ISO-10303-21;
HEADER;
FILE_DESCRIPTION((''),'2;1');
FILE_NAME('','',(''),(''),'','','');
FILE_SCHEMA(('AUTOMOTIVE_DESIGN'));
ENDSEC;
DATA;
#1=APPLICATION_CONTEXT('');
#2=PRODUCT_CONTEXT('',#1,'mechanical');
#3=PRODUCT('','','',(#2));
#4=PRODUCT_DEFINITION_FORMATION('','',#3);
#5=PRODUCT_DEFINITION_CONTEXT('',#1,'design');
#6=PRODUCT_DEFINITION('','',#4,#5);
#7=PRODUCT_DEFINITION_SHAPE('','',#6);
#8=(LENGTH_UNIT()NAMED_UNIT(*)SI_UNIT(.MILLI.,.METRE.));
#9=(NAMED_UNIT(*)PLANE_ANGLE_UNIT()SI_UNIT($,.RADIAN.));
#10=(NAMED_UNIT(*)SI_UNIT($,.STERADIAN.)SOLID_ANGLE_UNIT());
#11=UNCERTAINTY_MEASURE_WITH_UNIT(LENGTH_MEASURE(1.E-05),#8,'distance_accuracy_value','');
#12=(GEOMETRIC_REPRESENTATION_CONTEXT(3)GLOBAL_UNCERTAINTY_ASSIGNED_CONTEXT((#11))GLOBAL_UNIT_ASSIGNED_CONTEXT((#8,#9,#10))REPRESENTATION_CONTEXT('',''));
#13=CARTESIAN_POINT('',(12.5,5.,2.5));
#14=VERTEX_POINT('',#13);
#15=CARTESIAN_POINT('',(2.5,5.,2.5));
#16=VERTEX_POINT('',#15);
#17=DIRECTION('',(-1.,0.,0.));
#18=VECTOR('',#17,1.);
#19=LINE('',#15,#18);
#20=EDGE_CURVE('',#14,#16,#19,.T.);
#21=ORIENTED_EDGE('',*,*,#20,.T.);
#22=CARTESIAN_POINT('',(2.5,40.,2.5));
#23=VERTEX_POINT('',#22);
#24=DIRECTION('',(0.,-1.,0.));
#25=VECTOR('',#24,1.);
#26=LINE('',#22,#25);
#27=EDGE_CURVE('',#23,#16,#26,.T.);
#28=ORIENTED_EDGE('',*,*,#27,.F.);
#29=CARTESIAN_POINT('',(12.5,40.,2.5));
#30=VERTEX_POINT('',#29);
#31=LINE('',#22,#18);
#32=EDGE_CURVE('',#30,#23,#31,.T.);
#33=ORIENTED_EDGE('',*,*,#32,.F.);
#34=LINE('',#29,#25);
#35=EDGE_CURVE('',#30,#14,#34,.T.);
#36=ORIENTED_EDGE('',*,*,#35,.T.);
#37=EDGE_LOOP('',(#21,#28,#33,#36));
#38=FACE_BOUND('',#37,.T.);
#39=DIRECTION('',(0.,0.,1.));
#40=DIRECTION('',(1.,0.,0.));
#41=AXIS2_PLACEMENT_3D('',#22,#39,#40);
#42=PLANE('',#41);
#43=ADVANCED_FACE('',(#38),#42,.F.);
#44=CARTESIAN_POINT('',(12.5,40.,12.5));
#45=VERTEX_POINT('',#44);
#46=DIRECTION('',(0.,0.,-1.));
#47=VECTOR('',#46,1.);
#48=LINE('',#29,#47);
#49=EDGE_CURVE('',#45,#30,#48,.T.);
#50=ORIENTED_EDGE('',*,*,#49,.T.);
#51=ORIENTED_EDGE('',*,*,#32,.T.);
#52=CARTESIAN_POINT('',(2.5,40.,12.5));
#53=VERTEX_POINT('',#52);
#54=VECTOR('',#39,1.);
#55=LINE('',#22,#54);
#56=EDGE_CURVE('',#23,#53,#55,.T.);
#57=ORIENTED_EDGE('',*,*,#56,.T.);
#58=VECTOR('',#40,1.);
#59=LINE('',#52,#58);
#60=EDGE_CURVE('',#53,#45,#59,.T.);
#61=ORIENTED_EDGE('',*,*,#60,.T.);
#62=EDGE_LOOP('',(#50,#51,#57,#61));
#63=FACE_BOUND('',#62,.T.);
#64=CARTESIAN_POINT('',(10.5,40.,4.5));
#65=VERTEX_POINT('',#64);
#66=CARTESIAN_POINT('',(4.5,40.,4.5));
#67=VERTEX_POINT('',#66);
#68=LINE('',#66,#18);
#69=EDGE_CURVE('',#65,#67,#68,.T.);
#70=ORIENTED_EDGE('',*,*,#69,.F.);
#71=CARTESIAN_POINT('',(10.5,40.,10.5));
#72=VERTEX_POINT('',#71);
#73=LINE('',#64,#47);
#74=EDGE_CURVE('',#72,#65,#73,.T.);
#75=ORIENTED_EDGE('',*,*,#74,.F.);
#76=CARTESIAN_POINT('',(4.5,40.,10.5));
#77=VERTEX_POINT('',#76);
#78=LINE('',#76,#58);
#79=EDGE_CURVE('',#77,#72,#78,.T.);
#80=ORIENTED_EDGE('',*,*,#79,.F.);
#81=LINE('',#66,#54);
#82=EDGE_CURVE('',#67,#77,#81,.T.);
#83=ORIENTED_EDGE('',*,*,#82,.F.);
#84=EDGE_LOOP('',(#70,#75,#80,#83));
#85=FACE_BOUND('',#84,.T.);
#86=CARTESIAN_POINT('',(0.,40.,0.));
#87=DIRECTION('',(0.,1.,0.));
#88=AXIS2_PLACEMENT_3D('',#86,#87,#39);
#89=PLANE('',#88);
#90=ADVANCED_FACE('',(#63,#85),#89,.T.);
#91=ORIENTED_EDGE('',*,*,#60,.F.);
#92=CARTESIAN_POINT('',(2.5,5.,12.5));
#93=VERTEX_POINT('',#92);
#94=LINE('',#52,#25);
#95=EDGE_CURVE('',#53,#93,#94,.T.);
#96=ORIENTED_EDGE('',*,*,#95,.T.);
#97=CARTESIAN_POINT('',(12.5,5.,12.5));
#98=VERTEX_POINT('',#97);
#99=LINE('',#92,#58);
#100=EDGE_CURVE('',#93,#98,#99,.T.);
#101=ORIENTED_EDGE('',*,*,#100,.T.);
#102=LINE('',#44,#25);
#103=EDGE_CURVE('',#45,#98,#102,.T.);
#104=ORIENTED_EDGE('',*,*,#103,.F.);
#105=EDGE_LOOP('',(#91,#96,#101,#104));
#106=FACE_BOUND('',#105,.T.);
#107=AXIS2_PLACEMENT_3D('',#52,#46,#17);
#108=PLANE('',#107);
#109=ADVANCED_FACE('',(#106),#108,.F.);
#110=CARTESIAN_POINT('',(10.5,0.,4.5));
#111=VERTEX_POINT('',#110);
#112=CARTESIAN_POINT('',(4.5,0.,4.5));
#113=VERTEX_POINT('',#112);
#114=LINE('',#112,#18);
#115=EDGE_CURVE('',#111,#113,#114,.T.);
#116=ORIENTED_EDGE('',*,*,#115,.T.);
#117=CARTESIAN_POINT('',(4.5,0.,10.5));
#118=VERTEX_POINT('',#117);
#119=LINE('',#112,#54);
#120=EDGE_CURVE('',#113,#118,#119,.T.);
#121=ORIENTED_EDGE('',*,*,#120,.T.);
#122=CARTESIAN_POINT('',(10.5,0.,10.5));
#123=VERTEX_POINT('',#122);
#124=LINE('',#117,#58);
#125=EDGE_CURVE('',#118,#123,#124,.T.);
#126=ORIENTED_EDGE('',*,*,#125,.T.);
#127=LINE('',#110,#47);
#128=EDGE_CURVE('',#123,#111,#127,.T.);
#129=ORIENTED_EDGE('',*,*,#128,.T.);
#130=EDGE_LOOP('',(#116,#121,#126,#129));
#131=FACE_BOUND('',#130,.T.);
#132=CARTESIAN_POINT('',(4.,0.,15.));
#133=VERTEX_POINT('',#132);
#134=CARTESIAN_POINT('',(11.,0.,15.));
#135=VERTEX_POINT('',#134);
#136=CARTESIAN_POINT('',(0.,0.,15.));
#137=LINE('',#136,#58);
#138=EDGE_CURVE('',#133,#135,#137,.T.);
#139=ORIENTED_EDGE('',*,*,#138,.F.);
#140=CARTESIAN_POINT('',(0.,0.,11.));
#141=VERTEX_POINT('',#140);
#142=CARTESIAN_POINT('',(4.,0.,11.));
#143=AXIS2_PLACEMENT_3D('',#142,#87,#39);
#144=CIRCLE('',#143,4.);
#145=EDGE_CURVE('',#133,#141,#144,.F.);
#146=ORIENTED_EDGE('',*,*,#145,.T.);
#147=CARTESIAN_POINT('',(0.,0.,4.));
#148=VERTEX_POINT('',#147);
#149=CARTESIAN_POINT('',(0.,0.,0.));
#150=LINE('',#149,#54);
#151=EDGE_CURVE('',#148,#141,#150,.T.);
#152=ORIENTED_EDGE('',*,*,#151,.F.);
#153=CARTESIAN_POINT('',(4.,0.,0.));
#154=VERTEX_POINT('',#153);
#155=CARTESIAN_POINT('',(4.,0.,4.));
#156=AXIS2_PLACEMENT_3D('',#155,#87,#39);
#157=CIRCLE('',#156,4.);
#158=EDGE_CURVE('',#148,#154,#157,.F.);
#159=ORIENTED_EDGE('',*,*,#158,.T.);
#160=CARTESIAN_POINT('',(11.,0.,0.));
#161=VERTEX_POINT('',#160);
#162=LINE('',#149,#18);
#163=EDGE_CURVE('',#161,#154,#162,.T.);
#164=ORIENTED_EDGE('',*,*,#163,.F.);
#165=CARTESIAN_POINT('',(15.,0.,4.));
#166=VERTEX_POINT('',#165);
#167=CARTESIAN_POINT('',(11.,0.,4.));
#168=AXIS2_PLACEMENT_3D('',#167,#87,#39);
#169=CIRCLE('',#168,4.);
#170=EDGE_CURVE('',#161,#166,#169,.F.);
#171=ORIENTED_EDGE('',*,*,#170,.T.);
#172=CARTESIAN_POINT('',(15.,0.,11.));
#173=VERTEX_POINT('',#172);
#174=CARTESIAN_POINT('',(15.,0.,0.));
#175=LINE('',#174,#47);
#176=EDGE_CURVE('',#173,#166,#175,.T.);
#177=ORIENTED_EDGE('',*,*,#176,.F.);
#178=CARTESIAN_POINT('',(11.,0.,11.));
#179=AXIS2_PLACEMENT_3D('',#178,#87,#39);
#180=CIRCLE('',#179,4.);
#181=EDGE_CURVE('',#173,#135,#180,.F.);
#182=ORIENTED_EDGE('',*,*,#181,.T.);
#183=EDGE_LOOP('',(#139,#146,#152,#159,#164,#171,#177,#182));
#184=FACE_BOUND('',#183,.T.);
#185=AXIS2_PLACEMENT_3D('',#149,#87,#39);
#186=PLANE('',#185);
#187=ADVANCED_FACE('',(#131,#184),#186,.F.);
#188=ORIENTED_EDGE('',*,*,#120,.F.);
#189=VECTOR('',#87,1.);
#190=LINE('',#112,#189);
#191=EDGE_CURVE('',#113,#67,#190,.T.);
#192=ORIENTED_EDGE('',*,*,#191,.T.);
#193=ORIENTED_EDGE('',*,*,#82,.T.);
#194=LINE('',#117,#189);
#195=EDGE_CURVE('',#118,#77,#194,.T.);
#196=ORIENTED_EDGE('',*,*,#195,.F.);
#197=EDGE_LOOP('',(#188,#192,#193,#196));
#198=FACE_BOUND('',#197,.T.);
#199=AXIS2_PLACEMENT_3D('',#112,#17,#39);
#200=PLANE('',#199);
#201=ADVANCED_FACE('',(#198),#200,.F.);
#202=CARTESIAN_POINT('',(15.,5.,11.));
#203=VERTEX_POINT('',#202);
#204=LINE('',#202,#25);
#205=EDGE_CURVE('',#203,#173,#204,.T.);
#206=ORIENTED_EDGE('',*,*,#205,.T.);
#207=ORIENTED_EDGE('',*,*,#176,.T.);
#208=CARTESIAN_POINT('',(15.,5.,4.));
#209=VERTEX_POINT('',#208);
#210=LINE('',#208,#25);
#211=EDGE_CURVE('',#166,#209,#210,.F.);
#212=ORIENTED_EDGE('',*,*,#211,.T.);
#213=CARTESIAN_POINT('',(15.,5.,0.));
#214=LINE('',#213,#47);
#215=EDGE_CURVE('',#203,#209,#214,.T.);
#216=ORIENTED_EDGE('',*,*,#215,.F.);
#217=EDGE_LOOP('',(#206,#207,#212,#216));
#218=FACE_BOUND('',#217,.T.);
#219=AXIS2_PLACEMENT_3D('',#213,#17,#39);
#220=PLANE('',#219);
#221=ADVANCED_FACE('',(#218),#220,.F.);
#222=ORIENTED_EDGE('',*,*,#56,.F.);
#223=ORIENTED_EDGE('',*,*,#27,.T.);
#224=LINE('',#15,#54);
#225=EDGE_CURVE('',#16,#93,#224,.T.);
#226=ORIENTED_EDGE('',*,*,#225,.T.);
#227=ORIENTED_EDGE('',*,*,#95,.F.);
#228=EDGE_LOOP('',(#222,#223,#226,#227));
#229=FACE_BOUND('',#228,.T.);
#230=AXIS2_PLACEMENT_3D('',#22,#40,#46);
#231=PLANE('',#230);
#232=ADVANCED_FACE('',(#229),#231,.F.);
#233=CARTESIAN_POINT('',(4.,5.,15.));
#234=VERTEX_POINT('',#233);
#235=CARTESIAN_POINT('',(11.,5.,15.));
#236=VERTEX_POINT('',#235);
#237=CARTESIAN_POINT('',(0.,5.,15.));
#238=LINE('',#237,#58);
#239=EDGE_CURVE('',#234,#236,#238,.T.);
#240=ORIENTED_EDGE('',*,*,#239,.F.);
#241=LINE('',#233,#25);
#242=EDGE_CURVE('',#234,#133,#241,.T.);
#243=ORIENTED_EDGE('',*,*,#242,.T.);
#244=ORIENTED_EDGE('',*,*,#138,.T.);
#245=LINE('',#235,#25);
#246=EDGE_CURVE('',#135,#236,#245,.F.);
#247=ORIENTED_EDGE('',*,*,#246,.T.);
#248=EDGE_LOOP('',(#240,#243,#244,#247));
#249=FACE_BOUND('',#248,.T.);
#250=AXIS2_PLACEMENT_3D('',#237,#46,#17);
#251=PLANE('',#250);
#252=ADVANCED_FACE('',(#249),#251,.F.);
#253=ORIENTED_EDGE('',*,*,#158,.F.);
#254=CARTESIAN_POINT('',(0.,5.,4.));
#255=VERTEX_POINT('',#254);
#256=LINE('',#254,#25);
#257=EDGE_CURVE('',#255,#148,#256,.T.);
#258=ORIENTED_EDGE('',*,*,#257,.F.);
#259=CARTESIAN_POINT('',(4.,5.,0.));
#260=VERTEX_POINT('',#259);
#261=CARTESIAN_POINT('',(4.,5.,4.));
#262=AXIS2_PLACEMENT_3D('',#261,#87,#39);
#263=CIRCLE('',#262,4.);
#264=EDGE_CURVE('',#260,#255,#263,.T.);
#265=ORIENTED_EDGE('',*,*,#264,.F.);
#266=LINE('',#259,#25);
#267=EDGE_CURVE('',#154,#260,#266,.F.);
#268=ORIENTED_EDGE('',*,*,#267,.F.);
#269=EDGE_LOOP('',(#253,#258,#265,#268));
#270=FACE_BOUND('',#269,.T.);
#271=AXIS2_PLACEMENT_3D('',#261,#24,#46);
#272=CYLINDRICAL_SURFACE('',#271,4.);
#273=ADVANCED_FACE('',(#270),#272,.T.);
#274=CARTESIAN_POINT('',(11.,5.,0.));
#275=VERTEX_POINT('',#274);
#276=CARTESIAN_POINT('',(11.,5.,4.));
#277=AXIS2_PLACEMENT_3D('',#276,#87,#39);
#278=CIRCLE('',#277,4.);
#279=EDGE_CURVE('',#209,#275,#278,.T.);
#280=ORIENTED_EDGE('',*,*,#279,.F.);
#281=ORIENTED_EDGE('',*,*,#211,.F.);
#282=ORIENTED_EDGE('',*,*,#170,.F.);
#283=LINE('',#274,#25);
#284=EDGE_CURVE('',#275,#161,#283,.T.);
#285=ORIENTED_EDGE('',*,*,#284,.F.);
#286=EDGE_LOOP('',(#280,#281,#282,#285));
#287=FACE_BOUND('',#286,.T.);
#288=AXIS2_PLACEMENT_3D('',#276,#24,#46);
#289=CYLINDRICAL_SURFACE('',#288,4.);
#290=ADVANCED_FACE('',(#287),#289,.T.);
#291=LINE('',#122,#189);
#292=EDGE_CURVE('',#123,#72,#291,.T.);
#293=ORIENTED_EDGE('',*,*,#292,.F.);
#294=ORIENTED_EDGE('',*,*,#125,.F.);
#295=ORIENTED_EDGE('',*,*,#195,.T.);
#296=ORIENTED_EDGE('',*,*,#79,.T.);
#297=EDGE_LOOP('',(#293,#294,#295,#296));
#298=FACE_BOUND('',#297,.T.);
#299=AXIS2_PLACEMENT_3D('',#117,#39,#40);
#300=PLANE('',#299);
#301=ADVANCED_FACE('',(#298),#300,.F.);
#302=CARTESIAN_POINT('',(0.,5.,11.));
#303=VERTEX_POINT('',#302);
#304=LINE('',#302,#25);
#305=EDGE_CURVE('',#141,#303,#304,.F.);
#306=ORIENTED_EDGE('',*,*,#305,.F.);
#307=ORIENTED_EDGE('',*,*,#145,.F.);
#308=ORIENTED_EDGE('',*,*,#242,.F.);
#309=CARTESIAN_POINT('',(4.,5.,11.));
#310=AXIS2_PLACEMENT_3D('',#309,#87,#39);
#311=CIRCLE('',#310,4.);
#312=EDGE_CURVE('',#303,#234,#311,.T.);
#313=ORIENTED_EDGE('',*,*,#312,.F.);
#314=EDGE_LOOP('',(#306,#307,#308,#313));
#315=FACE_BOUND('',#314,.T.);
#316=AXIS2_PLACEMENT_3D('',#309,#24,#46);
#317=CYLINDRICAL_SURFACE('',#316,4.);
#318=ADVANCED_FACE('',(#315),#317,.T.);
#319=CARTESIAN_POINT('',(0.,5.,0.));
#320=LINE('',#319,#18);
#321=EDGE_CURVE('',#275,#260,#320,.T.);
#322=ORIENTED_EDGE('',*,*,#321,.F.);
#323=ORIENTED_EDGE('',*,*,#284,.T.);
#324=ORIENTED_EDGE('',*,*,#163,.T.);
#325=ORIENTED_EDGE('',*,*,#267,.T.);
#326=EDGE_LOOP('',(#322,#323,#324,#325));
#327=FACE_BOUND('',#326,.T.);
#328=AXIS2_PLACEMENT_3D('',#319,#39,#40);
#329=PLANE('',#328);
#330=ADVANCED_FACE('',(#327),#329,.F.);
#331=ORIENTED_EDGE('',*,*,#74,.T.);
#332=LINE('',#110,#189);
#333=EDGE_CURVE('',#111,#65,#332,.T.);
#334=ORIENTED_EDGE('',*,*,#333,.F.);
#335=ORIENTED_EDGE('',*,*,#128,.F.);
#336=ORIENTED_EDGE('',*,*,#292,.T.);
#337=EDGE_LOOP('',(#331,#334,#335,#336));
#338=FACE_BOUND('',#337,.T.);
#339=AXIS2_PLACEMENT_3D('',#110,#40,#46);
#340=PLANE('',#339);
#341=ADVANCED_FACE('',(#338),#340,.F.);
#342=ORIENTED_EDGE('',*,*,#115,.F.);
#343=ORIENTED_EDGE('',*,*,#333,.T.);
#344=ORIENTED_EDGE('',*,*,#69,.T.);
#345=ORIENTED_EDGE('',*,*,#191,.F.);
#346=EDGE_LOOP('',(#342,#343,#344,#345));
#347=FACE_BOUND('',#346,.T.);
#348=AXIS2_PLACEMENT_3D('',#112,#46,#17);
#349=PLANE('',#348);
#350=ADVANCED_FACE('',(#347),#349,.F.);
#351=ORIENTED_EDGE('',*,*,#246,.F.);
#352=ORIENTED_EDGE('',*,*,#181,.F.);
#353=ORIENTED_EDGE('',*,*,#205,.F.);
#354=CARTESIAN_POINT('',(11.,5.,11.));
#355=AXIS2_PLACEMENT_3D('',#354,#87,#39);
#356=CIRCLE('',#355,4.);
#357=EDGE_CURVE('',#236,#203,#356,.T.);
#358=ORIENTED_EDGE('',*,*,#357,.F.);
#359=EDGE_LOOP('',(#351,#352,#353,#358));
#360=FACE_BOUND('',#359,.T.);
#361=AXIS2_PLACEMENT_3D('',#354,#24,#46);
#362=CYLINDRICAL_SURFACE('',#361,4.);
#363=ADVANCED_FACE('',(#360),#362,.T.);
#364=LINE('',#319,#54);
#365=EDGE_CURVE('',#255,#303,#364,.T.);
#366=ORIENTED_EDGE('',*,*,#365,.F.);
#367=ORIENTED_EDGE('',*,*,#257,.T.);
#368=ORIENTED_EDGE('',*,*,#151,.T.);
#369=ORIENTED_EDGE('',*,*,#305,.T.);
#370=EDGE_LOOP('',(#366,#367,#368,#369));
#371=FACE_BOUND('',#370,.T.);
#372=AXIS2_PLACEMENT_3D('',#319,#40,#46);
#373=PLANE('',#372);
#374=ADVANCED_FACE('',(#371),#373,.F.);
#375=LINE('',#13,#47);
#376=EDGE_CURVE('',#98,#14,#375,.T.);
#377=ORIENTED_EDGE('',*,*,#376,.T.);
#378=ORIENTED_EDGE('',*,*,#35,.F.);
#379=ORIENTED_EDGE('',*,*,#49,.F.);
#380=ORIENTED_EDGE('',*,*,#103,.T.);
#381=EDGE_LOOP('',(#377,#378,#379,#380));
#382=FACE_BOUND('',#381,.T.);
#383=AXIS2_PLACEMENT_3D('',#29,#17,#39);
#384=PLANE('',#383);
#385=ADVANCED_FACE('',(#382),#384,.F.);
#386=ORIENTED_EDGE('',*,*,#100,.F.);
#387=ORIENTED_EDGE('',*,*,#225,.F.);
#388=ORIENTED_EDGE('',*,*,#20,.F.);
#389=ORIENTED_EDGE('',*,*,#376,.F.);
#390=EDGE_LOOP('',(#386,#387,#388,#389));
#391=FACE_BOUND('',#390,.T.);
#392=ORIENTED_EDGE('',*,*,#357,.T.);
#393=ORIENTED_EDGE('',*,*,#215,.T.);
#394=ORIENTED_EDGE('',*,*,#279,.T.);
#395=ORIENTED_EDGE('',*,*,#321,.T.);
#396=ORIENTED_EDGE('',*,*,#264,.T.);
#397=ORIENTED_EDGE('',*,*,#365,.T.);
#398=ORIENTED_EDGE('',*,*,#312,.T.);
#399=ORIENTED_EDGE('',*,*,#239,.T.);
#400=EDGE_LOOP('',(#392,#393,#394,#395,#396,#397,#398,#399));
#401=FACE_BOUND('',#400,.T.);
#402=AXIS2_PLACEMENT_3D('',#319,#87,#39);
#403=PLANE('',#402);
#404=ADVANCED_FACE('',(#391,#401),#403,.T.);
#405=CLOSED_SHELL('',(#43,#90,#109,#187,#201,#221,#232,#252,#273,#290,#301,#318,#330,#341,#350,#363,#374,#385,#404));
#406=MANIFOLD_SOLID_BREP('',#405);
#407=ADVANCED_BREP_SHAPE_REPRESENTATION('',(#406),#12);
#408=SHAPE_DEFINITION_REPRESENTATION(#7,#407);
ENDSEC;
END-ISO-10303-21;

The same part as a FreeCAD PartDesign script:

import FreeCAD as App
import Part
import Sketcher
Q = App.Units.Quantity


def edges_at(feature, points):
    """Names of the edges that pass closest to the given points."""
    edges = feature.Shape.Edges
    near = lambda p: min(range(len(edges)), key=lambda i: edges[i].distToShape(Part.Vertex(*p))[0])
    return sorted({f"Edge{near(p) + 1}" for p in points})


def add_polygon(sketch, points):
    """Adds a closed chain of lines whose ends are joined by coincident constraints."""
    first, n = sketch.GeometryCount, len(points)
    for a, b in zip(points, points[1:] + points[:1]):
        sketch.addGeometry(Part.LineSegment(App.Vector(*a, 0), App.Vector(*b, 0)), False)
    for i in range(n):
        sketch.addConstraint(Sketcher.Constraint("Coincident", first + i, 2, first + (i + 1) % n, 1))

doc = App.newDocument("Part")
params = doc.addObject("Spreadsheet::Sheet", "Params")
for row, (alias, value) in enumerate([
    ("sketch1_width", "15 mm"),
    ("pad1_length", "5 mm"),
    ("sketch2_width", "10 mm"),
    ("pad2_length", "35 mm"),
    ("fillet_radius", "4 mm"),
    ("sketch3_width", "6 mm"),
], start=1):
    params.set(f"A{row}", alias)
    params.set(f"B{row}", "=" + value)
    params.setAlias(f"B{row}", alias)

body = doc.addObject("PartDesign::Body", "Body")

# Sketch on XZ plane
sketch1 = doc.addObject("Sketcher::SketchObject", "Sketch")
body.addObject(sketch1)
sketch1.AttachmentSupport = (doc.XZ_Plane, [""])
sketch1.MapMode = "FlatFace"
add_polygon(sketch1, [(0, 0), (0, 15), (15, 15), (15, 0)])  # lines 0-3
sketch1.addConstraint(Sketcher.Constraint("Vertical", 0))
sketch1.addConstraint(Sketcher.Constraint("Horizontal", 1))
sketch1.addConstraint(Sketcher.Constraint("Vertical", 2))
sketch1.addConstraint(Sketcher.Constraint("Horizontal", 3))
sketch1.addConstraint(Sketcher.Constraint("Coincident", 3, 2, -1, 1))
sketch1.addConstraint(Sketcher.Constraint("Equal", 3, 0))
sketch1.addConstraint(Sketcher.Constraint("DistanceX", 1, 1, 1, 2, Q("15 mm")))
sketch1.setExpression("Constraints[10]", "Params.sketch1_width")
pad1 = doc.addObject("PartDesign::Pad", "Pad")
body.addObject(pad1)
pad1.Profile = sketch1
pad1.setExpression("Length", "Params.pad1_length")
pad1.Reversed = True

# Sketch on XZ plane
sketch2 = doc.addObject("Sketcher::SketchObject", "Sketch001")
body.addObject(sketch2)
sketch2.AttachmentSupport = (doc.XZ_Plane, [""])
sketch2.MapMode = "FlatFace"
sketch2.AttachmentOffset = App.Placement(App.Vector(0, 0, -5), App.Rotation())
add_polygon(sketch2, [(2, 2), (2, 12), (12, 12), (12, 2)])  # lines 0-3
sketch2.addConstraint(Sketcher.Constraint("Vertical", 0))
sketch2.addConstraint(Sketcher.Constraint("Horizontal", 1))
sketch2.addConstraint(Sketcher.Constraint("Vertical", 2))
sketch2.addConstraint(Sketcher.Constraint("Horizontal", 3))
sketch2.addConstraint(Sketcher.Constraint("Equal", 3, 0))
sketch2.addConstraint(Sketcher.Constraint("DistanceX", 1, 1, 1, 2, Q("10 mm")))
sketch2.addConstraint(Sketcher.Constraint("DistanceX", -1, 1, 0, 2, Q("2.5 mm")))
sketch2.addConstraint(Sketcher.Constraint("DistanceY", -1, 1, 0, 2, Q("12.5 mm")))
sketch2.setExpression("Constraints[9]", "Params.sketch2_width")
pad2 = doc.addObject("PartDesign::Pad", "Pad001")
body.addObject(pad2)
pad2.Profile = sketch2
pad2.setExpression("Length", "Params.pad2_length")
pad2.Reversed = True
doc.recompute()

fillet = doc.addObject("PartDesign::Fillet", "Fillet")
body.addObject(fillet)
fillet.Base = (pad2, edges_at(pad2, [
    (0, 2.5, 0),
    (15, 2.5, 0),
    (15, 2.5, 15),
    (0, 2.5, 15),
]))
fillet.setExpression("Radius", "Params.fillet_radius")

# Sketch on XZ plane
sketch3 = doc.addObject("Sketcher::SketchObject", "Sketch002")
body.addObject(sketch3)
sketch3.AttachmentSupport = (doc.XZ_Plane, [""])
sketch3.MapMode = "FlatFace"
sketch3.AttachmentOffset = App.Placement(App.Vector(0, 0, -40), App.Rotation())
add_polygon(sketch3, [(4, 4), (4, 10), (10, 10), (10, 4)])  # lines 0-3
sketch3.addConstraint(Sketcher.Constraint("Vertical", 0))
sketch3.addConstraint(Sketcher.Constraint("Horizontal", 1))
sketch3.addConstraint(Sketcher.Constraint("Vertical", 2))
sketch3.addConstraint(Sketcher.Constraint("Horizontal", 3))
sketch3.addConstraint(Sketcher.Constraint("Equal", 3, 0))
sketch3.addConstraint(Sketcher.Constraint("DistanceX", 1, 1, 1, 2, Q("6 mm")))
sketch3.addConstraint(Sketcher.Constraint("DistanceX", -1, 1, 0, 2, Q("4.5 mm")))
sketch3.addConstraint(Sketcher.Constraint("DistanceY", -1, 1, 0, 2, Q("10.5 mm")))
sketch3.setExpression("Constraints[9]", "Params.sketch3_width")
pocket1 = doc.addObject("PartDesign::Pocket", "Pocket")
body.addObject(pocket1)
pocket1.Profile = sketch3
pocket1.Type = "ThroughAll"
pocket1.Reversed = True

doc.recompute()
